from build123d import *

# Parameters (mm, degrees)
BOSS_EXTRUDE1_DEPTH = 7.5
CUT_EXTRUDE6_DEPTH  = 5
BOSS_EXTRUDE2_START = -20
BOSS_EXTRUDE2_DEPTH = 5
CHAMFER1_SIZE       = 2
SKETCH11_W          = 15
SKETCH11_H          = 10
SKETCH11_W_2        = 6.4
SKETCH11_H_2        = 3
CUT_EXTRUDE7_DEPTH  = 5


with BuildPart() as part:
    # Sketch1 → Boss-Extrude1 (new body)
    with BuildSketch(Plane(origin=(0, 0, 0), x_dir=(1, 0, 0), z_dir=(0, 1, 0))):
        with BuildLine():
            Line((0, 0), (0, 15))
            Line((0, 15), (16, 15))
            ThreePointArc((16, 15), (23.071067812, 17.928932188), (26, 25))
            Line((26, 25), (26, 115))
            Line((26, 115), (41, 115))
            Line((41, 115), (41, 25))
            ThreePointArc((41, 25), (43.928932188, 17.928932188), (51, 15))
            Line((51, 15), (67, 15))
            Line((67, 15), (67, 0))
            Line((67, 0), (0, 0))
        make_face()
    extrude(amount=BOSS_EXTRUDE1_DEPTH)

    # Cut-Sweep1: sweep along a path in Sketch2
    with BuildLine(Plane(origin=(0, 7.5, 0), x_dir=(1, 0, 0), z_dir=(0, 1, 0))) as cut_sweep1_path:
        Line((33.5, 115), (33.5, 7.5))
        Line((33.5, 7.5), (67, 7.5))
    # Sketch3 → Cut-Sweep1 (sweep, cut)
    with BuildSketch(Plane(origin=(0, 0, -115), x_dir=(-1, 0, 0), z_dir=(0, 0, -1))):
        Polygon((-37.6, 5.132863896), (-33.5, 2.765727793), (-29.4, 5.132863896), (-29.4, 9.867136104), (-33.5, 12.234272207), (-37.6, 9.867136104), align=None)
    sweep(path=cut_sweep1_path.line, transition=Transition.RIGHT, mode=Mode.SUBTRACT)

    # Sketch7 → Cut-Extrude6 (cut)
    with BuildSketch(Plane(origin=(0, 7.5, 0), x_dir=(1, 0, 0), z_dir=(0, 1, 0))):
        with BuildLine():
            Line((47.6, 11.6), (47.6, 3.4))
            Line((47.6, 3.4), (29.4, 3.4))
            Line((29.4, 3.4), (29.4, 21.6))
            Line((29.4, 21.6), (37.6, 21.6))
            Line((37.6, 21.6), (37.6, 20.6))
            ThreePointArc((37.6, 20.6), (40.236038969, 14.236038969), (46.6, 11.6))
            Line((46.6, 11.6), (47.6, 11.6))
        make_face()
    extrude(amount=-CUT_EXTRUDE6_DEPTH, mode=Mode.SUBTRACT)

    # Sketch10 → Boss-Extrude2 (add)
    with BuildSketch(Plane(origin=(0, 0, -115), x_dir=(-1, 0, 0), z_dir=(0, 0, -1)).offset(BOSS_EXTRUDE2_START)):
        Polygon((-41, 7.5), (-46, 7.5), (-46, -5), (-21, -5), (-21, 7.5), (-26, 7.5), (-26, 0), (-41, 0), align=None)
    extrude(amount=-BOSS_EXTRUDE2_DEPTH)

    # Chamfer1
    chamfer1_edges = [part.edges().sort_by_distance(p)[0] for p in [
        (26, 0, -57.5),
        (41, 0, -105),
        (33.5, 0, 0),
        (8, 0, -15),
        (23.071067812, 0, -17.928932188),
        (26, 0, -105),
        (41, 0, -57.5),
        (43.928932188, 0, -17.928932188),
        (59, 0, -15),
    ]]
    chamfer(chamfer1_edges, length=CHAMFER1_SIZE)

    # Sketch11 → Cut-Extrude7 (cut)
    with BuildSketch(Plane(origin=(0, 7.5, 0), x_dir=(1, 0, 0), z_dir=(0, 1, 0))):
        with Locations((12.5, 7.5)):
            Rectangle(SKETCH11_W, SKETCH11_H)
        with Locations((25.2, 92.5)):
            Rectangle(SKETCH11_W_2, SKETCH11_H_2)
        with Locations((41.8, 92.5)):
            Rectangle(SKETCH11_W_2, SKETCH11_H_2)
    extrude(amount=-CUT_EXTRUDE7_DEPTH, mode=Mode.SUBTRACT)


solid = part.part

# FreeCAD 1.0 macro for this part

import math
import FreeCAD as App
import Part
import Sketcher

V = App.Vector
Q = App.Units.Quantity


def edges_at(feature, points):
    """Names of the edges that pass closest to the given points."""
    edges = feature.Shape.Edges
    near = lambda p: min(range(len(edges)), key=lambda i: edges[i].distToShape(Part.Vertex(*p))[0])
    return sorted({f"Edge{near(p) + 1}" for p in points})


def add_polygon(sketch, points):
    """Adds a closed chain of lines whose ends are joined by coincident constraints."""
    first, n = sketch.GeometryCount, len(points)
    for a, b in zip(points, points[1:] + points[:1]):
        sketch.addGeometry(Part.LineSegment(App.Vector(*a, 0), App.Vector(*b, 0)), False)
    for i in range(n):
        sketch.addConstraint(Sketcher.Constraint("Coincident", first + i, 2, first + (i + 1) % n, 1))

doc = App.newDocument("Part")
params = doc.addObject("Spreadsheet::Sheet", "Params")
for row, (alias, value) in enumerate([
    ("sketch1_radius", "10 mm"),
    ("sketch1_width", "67 mm"),
    ("sketch1_width2", "16 mm"),
    ("sketch1_height", "90 mm"),
    ("pad1_length", "7.5 mm"),
    ("sketch3_width", "33.5 mm"),
    ("sketch3_height", "107.5 mm"),
    ("sketch4_radius", "9 mm"),
    ("sketch4_width", "1 mm"),
    ("sketch4_width2", "8.2 mm"),
    ("pocket1_length", "5 mm"),
    ("sketch5_width", "5 mm"),
    ("sketch5_width2", "25 mm"),
    ("sketch5_height", "12.5 mm"),
    ("sketch5_height2", "7.5 mm"),
    ("pad2_length", "5 mm"),
    ("chamfer_size", "2 mm"),
    ("sketch6_width", "15 mm"),
    ("sketch6_height", "10 mm"),
    ("sketch6_height2", "3 mm"),
    ("sketch6_width2", "6.4 mm"),
    ("pocket2_length", "5 mm"),
], start=1):
    params.set(f"A{row}", alias)
    params.set(f"B{row}", "=" + value)
    params.setAlias(f"B{row}", alias)

body = doc.addObject("PartDesign::Body", "Body")

sketch1 = doc.addObject("Sketcher::SketchObject", "Sketch")
body.addObject(sketch1)
sketch1.AttachmentSupport = (doc.XZ_Plane, [""])
sketch1.MapMode = "FlatFace"
sketch1.addGeometry([
    Part.LineSegment(V(0, -15, 0), V(0, 0, 0)),
    Part.LineSegment(V(0, 0, 0), V(67, 0, 0)),
    Part.LineSegment(V(67, 0, 0), V(67, -15, 0)),
    Part.LineSegment(V(67, -15, 0), V(51, -15, 0)),
    Part.ArcOfCircle(Part.Circle(V(51, -25, 0), V(0, 0, 1), 10), math.radians(90), math.radians(180)),
    Part.LineSegment(V(41, -25, 0), V(41, -115, 0)),
    Part.LineSegment(V(41, -115, 0), V(26, -115, 0)),
    Part.LineSegment(V(26, -115, 0), V(26, -25, 0)),
    Part.ArcOfCircle(Part.Circle(V(16, -25, 0), V(0, 0, 1), 10), math.radians(0), math.radians(90)),
    Part.LineSegment(V(16, -15, 0), V(0, -15, 0)),
], False)
sketch1.addConstraint([
    Sketcher.Constraint("Coincident", 0, 2, 1, 1),
    Sketcher.Constraint("Coincident", 1, 2, 2, 1),
    Sketcher.Constraint("Coincident", 2, 2, 3, 1),
    Sketcher.Constraint("Tangent", 3, 2, 4, 1),
    Sketcher.Constraint("Tangent", 4, 2, 5, 1),
    Sketcher.Constraint("Coincident", 5, 2, 6, 1),
    Sketcher.Constraint("Coincident", 6, 2, 7, 1),
    Sketcher.Constraint("Tangent", 7, 2, 8, 1),
    Sketcher.Constraint("Tangent", 8, 2, 9, 1),
    Sketcher.Constraint("Coincident", 9, 2, 0, 1),
    Sketcher.Constraint("Vertical", 0),
    Sketcher.Constraint("Horizontal", 1),
    Sketcher.Constraint("Vertical", 2),
    Sketcher.Constraint("Horizontal", 3),
    Sketcher.Constraint("Vertical", 5),
    Sketcher.Constraint("Horizontal", 6),
    Sketcher.Constraint("Vertical", 7),
    Sketcher.Constraint("Horizontal", 9),
    Sketcher.Constraint("Coincident", 0, 2, -1, 1),
    Sketcher.Constraint("Equal", 4, 8),
    Sketcher.Constraint("Horizontal", 4, 3, 8, 3),
    Sketcher.Constraint("Equal", 3, 9),
    Sketcher.Constraint("Equal", 6, 0),
    Sketcher.Constraint("Radius", 4, 10.0),
    Sketcher.Constraint("DistanceX", 1, 1, 1, 2, 67.0),
    Sketcher.Constraint("DistanceX", 3, 2, 3, 1, 16.0),
    Sketcher.Constraint("DistanceY", 5, 2, 5, 1, 90.0),
])
sketch1.setExpression("Constraints[23]", "Params.sketch1_radius")
sketch1.setExpression("Constraints[24]", "Params.sketch1_width")
sketch1.setExpression("Constraints[25]", "Params.sketch1_width2")
sketch1.setExpression("Constraints[26]", "Params.sketch1_height")
pad1 = doc.addObject("PartDesign::Pad", "Pad")
body.addObject(pad1)
pad1.Profile = sketch1
pad1.setExpression("Length", "Params.pad1_length")
pad1.Reversed = True

sketch2 = doc.addObject("Sketcher::SketchObject", "Sketch001")
body.addObject(sketch2)
sketch2.AttachmentSupport = (doc.XY_Plane, [""])
sketch2.MapMode = "FlatFace"
sketch2.AttachmentOffset = App.Placement(V(0, 0, -115), App.Rotation())
add_polygon(sketch2, [(37.6, 5.1), (33.5, 2.8), (29.4, 5.1), (29.4, 9.9), (33.5, 12.2), (37.6, 9.9)])
sketch2.addConstraint([
    Sketcher.Constraint("Vertical", 2),
    Sketcher.Constraint("Vertical", 5),
    Sketcher.Constraint("Parallel", 0, 3),
    Sketcher.Constraint("Parallel", 1, 4),
    Sketcher.Constraint("Horizontal", 2, 2, 4, 2),
    Sketcher.Constraint("Horizontal", 1, 2, 5, 2),
    Sketcher.Constraint("Vertical", 0, 2, 3, 2),
    Sketcher.Constraint("Angle", 0, Q("-150 deg")),
    Sketcher.Constraint("DistanceX", -1, 1, 0, 2, 33.5),
    Sketcher.Constraint("DistanceX", -1, 1, 1, 2, 29.4),
    Sketcher.Constraint("DistanceY", 2, 1, 2, 2, 4.734272),
    Sketcher.Constraint("DistanceY", -1, 1, 0, 2, 2.765728),
])

sketch3 = doc.addObject("Sketcher::SketchObject", "Sketch002")
body.addObject(sketch3)
sketch3.AttachmentSupport = (doc.XZ_Plane, [""])
sketch3.MapMode = "FlatFace"
sketch3.AttachmentOffset = App.Placement(V(0, 0, -7.5), App.Rotation())
sketch3.addGeometry([
    Part.LineSegment(V(34, -115, 0), V(34, -8, 0)),
    Part.LineSegment(V(34, -8, 0), V(67, -8, 0)),
], False)
sketch3.addConstraint([
    Sketcher.Constraint("Coincident", 0, 2, 1, 1),
    Sketcher.Constraint("Vertical", 0),
    Sketcher.Constraint("Horizontal", 1),
    Sketcher.Constraint("DistanceX", 1, 1, 1, 2, 33.5),
    Sketcher.Constraint("DistanceY", 0, 1, 0, 2, 107.5),
    Sketcher.Constraint("DistanceY", 0, 1, -1, 1, 115.0),
    Sketcher.Constraint("DistanceX", -1, 1, 1, 2, 67.0),
])
sketch3.setExpression("Constraints[3]", "Params.sketch3_width")
sketch3.setExpression("Constraints[4]", "Params.sketch3_height")
doc.recompute()

subtractivepipe = doc.addObject("PartDesign::SubtractivePipe", "SubtractivePipe")
body.addObject(subtractivepipe)
subtractivepipe.Profile = sketch2
subtractivepipe.Spine = (sketch3, ["Edge1", "Edge2"])
subtractivepipe.Transition = "Right corner"

sketch4 = doc.addObject("Sketcher::SketchObject", "Sketch003")
body.addObject(sketch4)
sketch4.AttachmentSupport = (doc.XZ_Plane, [""])
sketch4.MapMode = "FlatFace"
sketch4.AttachmentOffset = App.Placement(V(0, 0, -7.5), App.Rotation())
sketch4.addGeometry([
    Part.LineSegment(V(47.6, -3.4, 0), V(47.6, -11.6, 0)),
    Part.LineSegment(V(47.6, -11.6, 0), V(46.6, -11.6, 0)),
    Part.ArcOfCircle(Part.Circle(V(46.6, -20.6, 0), V(0, 0, 1), 9), math.radians(90), math.radians(180)),
    Part.LineSegment(V(37.6, -20.6, 0), V(37.6, -21.6, 0)),
    Part.LineSegment(V(37.6, -21.6, 0), V(29.4, -21.6, 0)),
    Part.LineSegment(V(29.4, -21.6, 0), V(29.4, -3.4, 0)),
    Part.LineSegment(V(29.4, -3.4, 0), V(47.6, -3.4, 0)),
], False)
sketch4.addConstraint([
    Sketcher.Constraint("Coincident", 0, 2, 1, 1),
    Sketcher.Constraint("Tangent", 1, 2, 2, 1),
    Sketcher.Constraint("Tangent", 2, 2, 3, 1),
    Sketcher.Constraint("Coincident", 3, 2, 4, 1),
    Sketcher.Constraint("Coincident", 4, 2, 5, 1),
    Sketcher.Constraint("Coincident", 5, 2, 6, 1),
    Sketcher.Constraint("Coincident", 6, 2, 0, 1),
    Sketcher.Constraint("Vertical", 0),
    Sketcher.Constraint("Horizontal", 1),
    Sketcher.Constraint("Vertical", 3),
    Sketcher.Constraint("Horizontal", 4),
    Sketcher.Constraint("Vertical", 5),
    Sketcher.Constraint("Horizontal", 6),
    Sketcher.Constraint("Equal", 4, 0),
    Sketcher.Constraint("Equal", 1, 3),
    Sketcher.Constraint("Radius", 2, 9.0),
    Sketcher.Constraint("DistanceX", 1, 2, 1, 1, 1.0),
    Sketcher.Constraint("DistanceX", 4, 2, 4, 1, 8.2),
    Sketcher.Constraint("DistanceX", -1, 1, 2, 3, 46.6),
    Sketcher.Constraint("DistanceY", 2, 3, -1, 1, 20.6),
])
sketch4.setExpression("Constraints[15]", "Params.sketch4_radius")
sketch4.setExpression("Constraints[16]", "Params.sketch4_width")
sketch4.setExpression("Constraints[17]", "Params.sketch4_width2")
pocket1 = doc.addObject("PartDesign::Pocket", "Pocket")
body.addObject(pocket1)
pocket1.Profile = sketch4
pocket1.setExpression("Length", "Params.pocket1_length")
pocket1.Reversed = True

sketch5 = doc.addObject("Sketcher::SketchObject", "Sketch004")
body.addObject(sketch5)
sketch5.AttachmentSupport = (doc.XY_Plane, [""])
sketch5.MapMode = "FlatFace"
sketch5.AttachmentOffset = App.Placement(V(0, 0, -95), App.Rotation())
add_polygon(sketch5, [(41, 8), (46, 8), (46, -5), (21, -5), (21, 8), (26, 8), (26, 0), (41, 0)])
sketch5.addConstraint([
    Sketcher.Constraint("Horizontal", 0),
    Sketcher.Constraint("Vertical", 1),
    Sketcher.Constraint("Horizontal", 2),
    Sketcher.Constraint("Vertical", 3),
    Sketcher.Constraint("Horizontal", 4),
    Sketcher.Constraint("Vertical", 5),
    Sketcher.Constraint("Horizontal", 6),
    Sketcher.Constraint("Vertical", 7),
    Sketcher.Constraint("PointOnObject", 5, 2, -1),
    Sketcher.Constraint("Horizontal", 0, 2, 3, 2),
    Sketcher.Constraint("Equal", 0, 4),
    Sketcher.Constraint("DistanceX", 0, 1, 0, 2, 5.0),
    Sketcher.Constraint("DistanceX", 2, 2, 2, 1, 25.0),
    Sketcher.Constraint("DistanceY", 1, 2, 1, 1, 12.5),
    Sketcher.Constraint("DistanceY", 5, 2, 5, 1, 7.5),
    Sketcher.Constraint("DistanceX", -1, 1, 0, 2, 46.0),
])
sketch5.setExpression("Constraints[19]", "Params.sketch5_width")
sketch5.setExpression("Constraints[20]", "Params.sketch5_width2")
sketch5.setExpression("Constraints[21]", "Params.sketch5_height")
sketch5.setExpression("Constraints[22]", "Params.sketch5_height2")
pad2 = doc.addObject("PartDesign::Pad", "Pad001")
body.addObject(pad2)
pad2.Profile = sketch5
pad2.setExpression("Length", "Params.pad2_length")
doc.recompute()

chamfer = doc.addObject("PartDesign::Chamfer", "Chamfer")
body.addObject(chamfer)
chamfer.Base = (pad2, edges_at(pad2, [
    (26, 0, -57.5),
    (41, 0, -105),
    (33.5, 0, 0),
    (8, 0, -15),
    (23.071, 0, -17.929),
    (26, 0, -105),
    (41, 0, -57.5),
    (43.929, 0, -17.929),
    (59, 0, -15),
]))
chamfer.setExpression("Size", "Params.chamfer_size")

sketch6 = doc.addObject("Sketcher::SketchObject", "Sketch005")
body.addObject(sketch6)
sketch6.AttachmentSupport = (doc.XZ_Plane, [""])
sketch6.MapMode = "FlatFace"
sketch6.AttachmentOffset = App.Placement(V(0, 0, -7.5), App.Rotation())
add_polygon(sketch6, [(5, -12.5), (5, -2.5), (20, -2.5), (20, -12.5)])
add_polygon(sketch6, [(22, -94), (22, -91), (28.4, -91), (28.4, -94)])
add_polygon(sketch6, [(38.6, -94), (38.6, -91), (45, -91), (45, -94)])
sketch6.addConstraint([
    Sketcher.Constraint("Vertical", 0),
    Sketcher.Constraint("Horizontal", 1),
    Sketcher.Constraint("Vertical", 2),
    Sketcher.Constraint("Horizontal", 3),
    Sketcher.Constraint("Vertical", 4),
    Sketcher.Constraint("Horizontal", 5),
    Sketcher.Constraint("Vertical", 6),
    Sketcher.Constraint("Horizontal", 7),
    Sketcher.Constraint("Vertical", 8),
    Sketcher.Constraint("Horizontal", 9),
    Sketcher.Constraint("Vertical", 10),
    Sketcher.Constraint("Horizontal", 11),
    Sketcher.Constraint("Horizontal", 5, 2, 8, 2),
    Sketcher.Constraint("Horizontal", 7, 2, 10, 2),
    Sketcher.Constraint("Equal", 7, 9),
    Sketcher.Constraint("DistanceX", 1, 1, 1, 2, 15.0),
    Sketcher.Constraint("DistanceY", 0, 1, 0, 2, 10.0),
    Sketcher.Constraint("DistanceY", 4, 1, 4, 2, 3.0),
    Sketcher.Constraint("DistanceX", 5, 1, 5, 2, 6.4),
    Sketcher.Constraint("DistanceX", -1, 1, 0, 2, 5.0),
    Sketcher.Constraint("DistanceX", -1, 1, 4, 2, 22.0),
    Sketcher.Constraint("DistanceY", 4, 2, -1, 1, 91.0),
    Sketcher.Constraint("DistanceX", -1, 1, 9, 2, 45.0),
    Sketcher.Constraint("DistanceY", 0, 2, -1, 1, 2.5),
])
sketch6.setExpression("Constraints[27]", "Params.sketch6_width")
sketch6.setExpression("Constraints[28]", "Params.sketch6_height")
sketch6.setExpression("Constraints[29]", "Params.sketch6_height2")
sketch6.setExpression("Constraints[30]", "Params.sketch6_width2")
pocket2 = doc.addObject("PartDesign::Pocket", "Pocket001")
body.addObject(pocket2)
pocket2.Profile = sketch6
pocket2.setExpression("Length", "Params.pocket2_length")
pocket2.Reversed = True

doc.recompute()
